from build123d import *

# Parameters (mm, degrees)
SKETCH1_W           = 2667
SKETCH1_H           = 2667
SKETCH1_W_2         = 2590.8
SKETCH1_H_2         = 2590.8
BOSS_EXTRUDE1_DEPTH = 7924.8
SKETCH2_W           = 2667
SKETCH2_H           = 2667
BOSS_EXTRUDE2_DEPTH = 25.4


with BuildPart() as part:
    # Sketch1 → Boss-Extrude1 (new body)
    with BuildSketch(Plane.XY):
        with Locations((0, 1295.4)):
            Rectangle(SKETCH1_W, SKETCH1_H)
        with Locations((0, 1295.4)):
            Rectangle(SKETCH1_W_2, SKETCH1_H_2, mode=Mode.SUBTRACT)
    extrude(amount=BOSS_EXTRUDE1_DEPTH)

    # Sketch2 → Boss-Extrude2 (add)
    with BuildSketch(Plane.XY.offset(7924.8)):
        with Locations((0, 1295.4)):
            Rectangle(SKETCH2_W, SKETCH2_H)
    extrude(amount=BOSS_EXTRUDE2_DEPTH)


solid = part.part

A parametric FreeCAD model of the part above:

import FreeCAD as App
import Part
import Sketcher
from FreeCAD import Vector
Q = App.Units.Quantity


def add_polygon(sketch, points):
    """Adds a closed chain of lines whose ends are joined by coincident constraints."""
    first, n = sketch.GeometryCount, len(points)
    for a, b in zip(points, points[1:] + points[:1]):
        sketch.addGeometry(Part.LineSegment(App.Vector(*a, 0), App.Vector(*b, 0)), False)
    for i in range(n):
        sketch.addConstraint(Sketcher.Constraint("Coincident", first + i, 2, first + (i + 1) % n, 1))

doc = App.newDocument("Part")
body = doc.addObject("PartDesign::Body", "Body")

# Sketch on XY plane
sketch1 = body.newObject("Sketcher::SketchObject", "Sketch")
sketch1.AttachmentSupport = (doc.getObject("XY_Plane"), [""])
sketch1.MapMode = "FlatFace"
add_polygon(sketch1, [(-1333.5, 2628.9), (-1333.5, -38.1), (1333.5, -38.1), (1333.5, 2628.9)])  # lines 0-3
add_polygon(sketch1, [(1295.4, 0), (-1295.4, 0), (-1295.4, 2590.8), (1295.4, 2590.8)])  # lines 4-7
sketch1.addConstraint(Sketcher.Constraint("Vertical", 0))
sketch1.addConstraint(Sketcher.Constraint("Horizontal", 1))
sketch1.addConstraint(Sketcher.Constraint("Vertical", 2))
sketch1.addConstraint(Sketcher.Constraint("Horizontal", 3))
sketch1.addConstraint(Sketcher.Constraint("Horizontal", 4))
sketch1.addConstraint(Sketcher.Constraint("Vertical", 5))
sketch1.addConstraint(Sketcher.Constraint("Horizontal", 6))
sketch1.addConstraint(Sketcher.Constraint("Vertical", 7))
sketch1.addConstraint(Sketcher.Constraint("Symmetric", 4, 2, 7, 2, -1, 1))
sketch1.addConstraint(Sketcher.Constraint("Equal", 3, 0))
sketch1.addConstraint(Sketcher.Constraint("Equal", 6, 5))
sketch1.addConstraint(Sketcher.Constraint("DistanceX", 1, 1, 1, 2, Q("105 in")))
sketch1.addConstraint(Sketcher.Constraint("DistanceX", 4, 2, 4, 1, Q("102 in")))
sketch1.addConstraint(Sketcher.Constraint("DistanceX", 0, 2, -1, 1, Q("52.5 in")))
sketch1.addConstraint(Sketcher.Constraint("DistanceY", 0, 2, -1, 1, Q("1.5 in")))
pad1 = body.newObject("PartDesign::Pad", "Pad")
pad1.Profile = sketch1
pad1.Length = Q("312 in")

# Sketch on XY plane
sketch2 = body.newObject("Sketcher::SketchObject", "Sketch001")
sketch2.AttachmentSupport = (doc.getObject("XY_Plane"), [""])
sketch2.MapMode = "FlatFace"
sketch2.AttachmentOffset = App.Placement(Vector(0, 0, 312 * 25.4), App.Rotation())
add_polygon(sketch2, [(-1333.5, 2628.9), (-1333.5, -38.1), (1333.5, -38.1), (1333.5, 2628.9)])  # lines 0-3
sketch2.addConstraint(Sketcher.Constraint("Vertical", 0))
sketch2.addConstraint(Sketcher.Constraint("Horizontal", 1))
sketch2.addConstraint(Sketcher.Constraint("Vertical", 2))
sketch2.addConstraint(Sketcher.Constraint("Horizontal", 3))
sketch2.addConstraint(Sketcher.Constraint("Equal", 3, 0))
sketch2.addConstraint(Sketcher.Constraint("DistanceX", 1, 1, 1, 2, Q("105 in")))
sketch2.addConstraint(Sketcher.Constraint("DistanceX", 0, 2, -1, 1, Q("52.5 in")))
sketch2.addConstraint(Sketcher.Constraint("DistanceY", 0, 2, -1, 1, Q("1.5 in")))
pad2 = body.newObject("PartDesign::Pad", "Pad001")
pad2.Profile = sketch2
pad2.Length = Q("1 in")

doc.recompute()
